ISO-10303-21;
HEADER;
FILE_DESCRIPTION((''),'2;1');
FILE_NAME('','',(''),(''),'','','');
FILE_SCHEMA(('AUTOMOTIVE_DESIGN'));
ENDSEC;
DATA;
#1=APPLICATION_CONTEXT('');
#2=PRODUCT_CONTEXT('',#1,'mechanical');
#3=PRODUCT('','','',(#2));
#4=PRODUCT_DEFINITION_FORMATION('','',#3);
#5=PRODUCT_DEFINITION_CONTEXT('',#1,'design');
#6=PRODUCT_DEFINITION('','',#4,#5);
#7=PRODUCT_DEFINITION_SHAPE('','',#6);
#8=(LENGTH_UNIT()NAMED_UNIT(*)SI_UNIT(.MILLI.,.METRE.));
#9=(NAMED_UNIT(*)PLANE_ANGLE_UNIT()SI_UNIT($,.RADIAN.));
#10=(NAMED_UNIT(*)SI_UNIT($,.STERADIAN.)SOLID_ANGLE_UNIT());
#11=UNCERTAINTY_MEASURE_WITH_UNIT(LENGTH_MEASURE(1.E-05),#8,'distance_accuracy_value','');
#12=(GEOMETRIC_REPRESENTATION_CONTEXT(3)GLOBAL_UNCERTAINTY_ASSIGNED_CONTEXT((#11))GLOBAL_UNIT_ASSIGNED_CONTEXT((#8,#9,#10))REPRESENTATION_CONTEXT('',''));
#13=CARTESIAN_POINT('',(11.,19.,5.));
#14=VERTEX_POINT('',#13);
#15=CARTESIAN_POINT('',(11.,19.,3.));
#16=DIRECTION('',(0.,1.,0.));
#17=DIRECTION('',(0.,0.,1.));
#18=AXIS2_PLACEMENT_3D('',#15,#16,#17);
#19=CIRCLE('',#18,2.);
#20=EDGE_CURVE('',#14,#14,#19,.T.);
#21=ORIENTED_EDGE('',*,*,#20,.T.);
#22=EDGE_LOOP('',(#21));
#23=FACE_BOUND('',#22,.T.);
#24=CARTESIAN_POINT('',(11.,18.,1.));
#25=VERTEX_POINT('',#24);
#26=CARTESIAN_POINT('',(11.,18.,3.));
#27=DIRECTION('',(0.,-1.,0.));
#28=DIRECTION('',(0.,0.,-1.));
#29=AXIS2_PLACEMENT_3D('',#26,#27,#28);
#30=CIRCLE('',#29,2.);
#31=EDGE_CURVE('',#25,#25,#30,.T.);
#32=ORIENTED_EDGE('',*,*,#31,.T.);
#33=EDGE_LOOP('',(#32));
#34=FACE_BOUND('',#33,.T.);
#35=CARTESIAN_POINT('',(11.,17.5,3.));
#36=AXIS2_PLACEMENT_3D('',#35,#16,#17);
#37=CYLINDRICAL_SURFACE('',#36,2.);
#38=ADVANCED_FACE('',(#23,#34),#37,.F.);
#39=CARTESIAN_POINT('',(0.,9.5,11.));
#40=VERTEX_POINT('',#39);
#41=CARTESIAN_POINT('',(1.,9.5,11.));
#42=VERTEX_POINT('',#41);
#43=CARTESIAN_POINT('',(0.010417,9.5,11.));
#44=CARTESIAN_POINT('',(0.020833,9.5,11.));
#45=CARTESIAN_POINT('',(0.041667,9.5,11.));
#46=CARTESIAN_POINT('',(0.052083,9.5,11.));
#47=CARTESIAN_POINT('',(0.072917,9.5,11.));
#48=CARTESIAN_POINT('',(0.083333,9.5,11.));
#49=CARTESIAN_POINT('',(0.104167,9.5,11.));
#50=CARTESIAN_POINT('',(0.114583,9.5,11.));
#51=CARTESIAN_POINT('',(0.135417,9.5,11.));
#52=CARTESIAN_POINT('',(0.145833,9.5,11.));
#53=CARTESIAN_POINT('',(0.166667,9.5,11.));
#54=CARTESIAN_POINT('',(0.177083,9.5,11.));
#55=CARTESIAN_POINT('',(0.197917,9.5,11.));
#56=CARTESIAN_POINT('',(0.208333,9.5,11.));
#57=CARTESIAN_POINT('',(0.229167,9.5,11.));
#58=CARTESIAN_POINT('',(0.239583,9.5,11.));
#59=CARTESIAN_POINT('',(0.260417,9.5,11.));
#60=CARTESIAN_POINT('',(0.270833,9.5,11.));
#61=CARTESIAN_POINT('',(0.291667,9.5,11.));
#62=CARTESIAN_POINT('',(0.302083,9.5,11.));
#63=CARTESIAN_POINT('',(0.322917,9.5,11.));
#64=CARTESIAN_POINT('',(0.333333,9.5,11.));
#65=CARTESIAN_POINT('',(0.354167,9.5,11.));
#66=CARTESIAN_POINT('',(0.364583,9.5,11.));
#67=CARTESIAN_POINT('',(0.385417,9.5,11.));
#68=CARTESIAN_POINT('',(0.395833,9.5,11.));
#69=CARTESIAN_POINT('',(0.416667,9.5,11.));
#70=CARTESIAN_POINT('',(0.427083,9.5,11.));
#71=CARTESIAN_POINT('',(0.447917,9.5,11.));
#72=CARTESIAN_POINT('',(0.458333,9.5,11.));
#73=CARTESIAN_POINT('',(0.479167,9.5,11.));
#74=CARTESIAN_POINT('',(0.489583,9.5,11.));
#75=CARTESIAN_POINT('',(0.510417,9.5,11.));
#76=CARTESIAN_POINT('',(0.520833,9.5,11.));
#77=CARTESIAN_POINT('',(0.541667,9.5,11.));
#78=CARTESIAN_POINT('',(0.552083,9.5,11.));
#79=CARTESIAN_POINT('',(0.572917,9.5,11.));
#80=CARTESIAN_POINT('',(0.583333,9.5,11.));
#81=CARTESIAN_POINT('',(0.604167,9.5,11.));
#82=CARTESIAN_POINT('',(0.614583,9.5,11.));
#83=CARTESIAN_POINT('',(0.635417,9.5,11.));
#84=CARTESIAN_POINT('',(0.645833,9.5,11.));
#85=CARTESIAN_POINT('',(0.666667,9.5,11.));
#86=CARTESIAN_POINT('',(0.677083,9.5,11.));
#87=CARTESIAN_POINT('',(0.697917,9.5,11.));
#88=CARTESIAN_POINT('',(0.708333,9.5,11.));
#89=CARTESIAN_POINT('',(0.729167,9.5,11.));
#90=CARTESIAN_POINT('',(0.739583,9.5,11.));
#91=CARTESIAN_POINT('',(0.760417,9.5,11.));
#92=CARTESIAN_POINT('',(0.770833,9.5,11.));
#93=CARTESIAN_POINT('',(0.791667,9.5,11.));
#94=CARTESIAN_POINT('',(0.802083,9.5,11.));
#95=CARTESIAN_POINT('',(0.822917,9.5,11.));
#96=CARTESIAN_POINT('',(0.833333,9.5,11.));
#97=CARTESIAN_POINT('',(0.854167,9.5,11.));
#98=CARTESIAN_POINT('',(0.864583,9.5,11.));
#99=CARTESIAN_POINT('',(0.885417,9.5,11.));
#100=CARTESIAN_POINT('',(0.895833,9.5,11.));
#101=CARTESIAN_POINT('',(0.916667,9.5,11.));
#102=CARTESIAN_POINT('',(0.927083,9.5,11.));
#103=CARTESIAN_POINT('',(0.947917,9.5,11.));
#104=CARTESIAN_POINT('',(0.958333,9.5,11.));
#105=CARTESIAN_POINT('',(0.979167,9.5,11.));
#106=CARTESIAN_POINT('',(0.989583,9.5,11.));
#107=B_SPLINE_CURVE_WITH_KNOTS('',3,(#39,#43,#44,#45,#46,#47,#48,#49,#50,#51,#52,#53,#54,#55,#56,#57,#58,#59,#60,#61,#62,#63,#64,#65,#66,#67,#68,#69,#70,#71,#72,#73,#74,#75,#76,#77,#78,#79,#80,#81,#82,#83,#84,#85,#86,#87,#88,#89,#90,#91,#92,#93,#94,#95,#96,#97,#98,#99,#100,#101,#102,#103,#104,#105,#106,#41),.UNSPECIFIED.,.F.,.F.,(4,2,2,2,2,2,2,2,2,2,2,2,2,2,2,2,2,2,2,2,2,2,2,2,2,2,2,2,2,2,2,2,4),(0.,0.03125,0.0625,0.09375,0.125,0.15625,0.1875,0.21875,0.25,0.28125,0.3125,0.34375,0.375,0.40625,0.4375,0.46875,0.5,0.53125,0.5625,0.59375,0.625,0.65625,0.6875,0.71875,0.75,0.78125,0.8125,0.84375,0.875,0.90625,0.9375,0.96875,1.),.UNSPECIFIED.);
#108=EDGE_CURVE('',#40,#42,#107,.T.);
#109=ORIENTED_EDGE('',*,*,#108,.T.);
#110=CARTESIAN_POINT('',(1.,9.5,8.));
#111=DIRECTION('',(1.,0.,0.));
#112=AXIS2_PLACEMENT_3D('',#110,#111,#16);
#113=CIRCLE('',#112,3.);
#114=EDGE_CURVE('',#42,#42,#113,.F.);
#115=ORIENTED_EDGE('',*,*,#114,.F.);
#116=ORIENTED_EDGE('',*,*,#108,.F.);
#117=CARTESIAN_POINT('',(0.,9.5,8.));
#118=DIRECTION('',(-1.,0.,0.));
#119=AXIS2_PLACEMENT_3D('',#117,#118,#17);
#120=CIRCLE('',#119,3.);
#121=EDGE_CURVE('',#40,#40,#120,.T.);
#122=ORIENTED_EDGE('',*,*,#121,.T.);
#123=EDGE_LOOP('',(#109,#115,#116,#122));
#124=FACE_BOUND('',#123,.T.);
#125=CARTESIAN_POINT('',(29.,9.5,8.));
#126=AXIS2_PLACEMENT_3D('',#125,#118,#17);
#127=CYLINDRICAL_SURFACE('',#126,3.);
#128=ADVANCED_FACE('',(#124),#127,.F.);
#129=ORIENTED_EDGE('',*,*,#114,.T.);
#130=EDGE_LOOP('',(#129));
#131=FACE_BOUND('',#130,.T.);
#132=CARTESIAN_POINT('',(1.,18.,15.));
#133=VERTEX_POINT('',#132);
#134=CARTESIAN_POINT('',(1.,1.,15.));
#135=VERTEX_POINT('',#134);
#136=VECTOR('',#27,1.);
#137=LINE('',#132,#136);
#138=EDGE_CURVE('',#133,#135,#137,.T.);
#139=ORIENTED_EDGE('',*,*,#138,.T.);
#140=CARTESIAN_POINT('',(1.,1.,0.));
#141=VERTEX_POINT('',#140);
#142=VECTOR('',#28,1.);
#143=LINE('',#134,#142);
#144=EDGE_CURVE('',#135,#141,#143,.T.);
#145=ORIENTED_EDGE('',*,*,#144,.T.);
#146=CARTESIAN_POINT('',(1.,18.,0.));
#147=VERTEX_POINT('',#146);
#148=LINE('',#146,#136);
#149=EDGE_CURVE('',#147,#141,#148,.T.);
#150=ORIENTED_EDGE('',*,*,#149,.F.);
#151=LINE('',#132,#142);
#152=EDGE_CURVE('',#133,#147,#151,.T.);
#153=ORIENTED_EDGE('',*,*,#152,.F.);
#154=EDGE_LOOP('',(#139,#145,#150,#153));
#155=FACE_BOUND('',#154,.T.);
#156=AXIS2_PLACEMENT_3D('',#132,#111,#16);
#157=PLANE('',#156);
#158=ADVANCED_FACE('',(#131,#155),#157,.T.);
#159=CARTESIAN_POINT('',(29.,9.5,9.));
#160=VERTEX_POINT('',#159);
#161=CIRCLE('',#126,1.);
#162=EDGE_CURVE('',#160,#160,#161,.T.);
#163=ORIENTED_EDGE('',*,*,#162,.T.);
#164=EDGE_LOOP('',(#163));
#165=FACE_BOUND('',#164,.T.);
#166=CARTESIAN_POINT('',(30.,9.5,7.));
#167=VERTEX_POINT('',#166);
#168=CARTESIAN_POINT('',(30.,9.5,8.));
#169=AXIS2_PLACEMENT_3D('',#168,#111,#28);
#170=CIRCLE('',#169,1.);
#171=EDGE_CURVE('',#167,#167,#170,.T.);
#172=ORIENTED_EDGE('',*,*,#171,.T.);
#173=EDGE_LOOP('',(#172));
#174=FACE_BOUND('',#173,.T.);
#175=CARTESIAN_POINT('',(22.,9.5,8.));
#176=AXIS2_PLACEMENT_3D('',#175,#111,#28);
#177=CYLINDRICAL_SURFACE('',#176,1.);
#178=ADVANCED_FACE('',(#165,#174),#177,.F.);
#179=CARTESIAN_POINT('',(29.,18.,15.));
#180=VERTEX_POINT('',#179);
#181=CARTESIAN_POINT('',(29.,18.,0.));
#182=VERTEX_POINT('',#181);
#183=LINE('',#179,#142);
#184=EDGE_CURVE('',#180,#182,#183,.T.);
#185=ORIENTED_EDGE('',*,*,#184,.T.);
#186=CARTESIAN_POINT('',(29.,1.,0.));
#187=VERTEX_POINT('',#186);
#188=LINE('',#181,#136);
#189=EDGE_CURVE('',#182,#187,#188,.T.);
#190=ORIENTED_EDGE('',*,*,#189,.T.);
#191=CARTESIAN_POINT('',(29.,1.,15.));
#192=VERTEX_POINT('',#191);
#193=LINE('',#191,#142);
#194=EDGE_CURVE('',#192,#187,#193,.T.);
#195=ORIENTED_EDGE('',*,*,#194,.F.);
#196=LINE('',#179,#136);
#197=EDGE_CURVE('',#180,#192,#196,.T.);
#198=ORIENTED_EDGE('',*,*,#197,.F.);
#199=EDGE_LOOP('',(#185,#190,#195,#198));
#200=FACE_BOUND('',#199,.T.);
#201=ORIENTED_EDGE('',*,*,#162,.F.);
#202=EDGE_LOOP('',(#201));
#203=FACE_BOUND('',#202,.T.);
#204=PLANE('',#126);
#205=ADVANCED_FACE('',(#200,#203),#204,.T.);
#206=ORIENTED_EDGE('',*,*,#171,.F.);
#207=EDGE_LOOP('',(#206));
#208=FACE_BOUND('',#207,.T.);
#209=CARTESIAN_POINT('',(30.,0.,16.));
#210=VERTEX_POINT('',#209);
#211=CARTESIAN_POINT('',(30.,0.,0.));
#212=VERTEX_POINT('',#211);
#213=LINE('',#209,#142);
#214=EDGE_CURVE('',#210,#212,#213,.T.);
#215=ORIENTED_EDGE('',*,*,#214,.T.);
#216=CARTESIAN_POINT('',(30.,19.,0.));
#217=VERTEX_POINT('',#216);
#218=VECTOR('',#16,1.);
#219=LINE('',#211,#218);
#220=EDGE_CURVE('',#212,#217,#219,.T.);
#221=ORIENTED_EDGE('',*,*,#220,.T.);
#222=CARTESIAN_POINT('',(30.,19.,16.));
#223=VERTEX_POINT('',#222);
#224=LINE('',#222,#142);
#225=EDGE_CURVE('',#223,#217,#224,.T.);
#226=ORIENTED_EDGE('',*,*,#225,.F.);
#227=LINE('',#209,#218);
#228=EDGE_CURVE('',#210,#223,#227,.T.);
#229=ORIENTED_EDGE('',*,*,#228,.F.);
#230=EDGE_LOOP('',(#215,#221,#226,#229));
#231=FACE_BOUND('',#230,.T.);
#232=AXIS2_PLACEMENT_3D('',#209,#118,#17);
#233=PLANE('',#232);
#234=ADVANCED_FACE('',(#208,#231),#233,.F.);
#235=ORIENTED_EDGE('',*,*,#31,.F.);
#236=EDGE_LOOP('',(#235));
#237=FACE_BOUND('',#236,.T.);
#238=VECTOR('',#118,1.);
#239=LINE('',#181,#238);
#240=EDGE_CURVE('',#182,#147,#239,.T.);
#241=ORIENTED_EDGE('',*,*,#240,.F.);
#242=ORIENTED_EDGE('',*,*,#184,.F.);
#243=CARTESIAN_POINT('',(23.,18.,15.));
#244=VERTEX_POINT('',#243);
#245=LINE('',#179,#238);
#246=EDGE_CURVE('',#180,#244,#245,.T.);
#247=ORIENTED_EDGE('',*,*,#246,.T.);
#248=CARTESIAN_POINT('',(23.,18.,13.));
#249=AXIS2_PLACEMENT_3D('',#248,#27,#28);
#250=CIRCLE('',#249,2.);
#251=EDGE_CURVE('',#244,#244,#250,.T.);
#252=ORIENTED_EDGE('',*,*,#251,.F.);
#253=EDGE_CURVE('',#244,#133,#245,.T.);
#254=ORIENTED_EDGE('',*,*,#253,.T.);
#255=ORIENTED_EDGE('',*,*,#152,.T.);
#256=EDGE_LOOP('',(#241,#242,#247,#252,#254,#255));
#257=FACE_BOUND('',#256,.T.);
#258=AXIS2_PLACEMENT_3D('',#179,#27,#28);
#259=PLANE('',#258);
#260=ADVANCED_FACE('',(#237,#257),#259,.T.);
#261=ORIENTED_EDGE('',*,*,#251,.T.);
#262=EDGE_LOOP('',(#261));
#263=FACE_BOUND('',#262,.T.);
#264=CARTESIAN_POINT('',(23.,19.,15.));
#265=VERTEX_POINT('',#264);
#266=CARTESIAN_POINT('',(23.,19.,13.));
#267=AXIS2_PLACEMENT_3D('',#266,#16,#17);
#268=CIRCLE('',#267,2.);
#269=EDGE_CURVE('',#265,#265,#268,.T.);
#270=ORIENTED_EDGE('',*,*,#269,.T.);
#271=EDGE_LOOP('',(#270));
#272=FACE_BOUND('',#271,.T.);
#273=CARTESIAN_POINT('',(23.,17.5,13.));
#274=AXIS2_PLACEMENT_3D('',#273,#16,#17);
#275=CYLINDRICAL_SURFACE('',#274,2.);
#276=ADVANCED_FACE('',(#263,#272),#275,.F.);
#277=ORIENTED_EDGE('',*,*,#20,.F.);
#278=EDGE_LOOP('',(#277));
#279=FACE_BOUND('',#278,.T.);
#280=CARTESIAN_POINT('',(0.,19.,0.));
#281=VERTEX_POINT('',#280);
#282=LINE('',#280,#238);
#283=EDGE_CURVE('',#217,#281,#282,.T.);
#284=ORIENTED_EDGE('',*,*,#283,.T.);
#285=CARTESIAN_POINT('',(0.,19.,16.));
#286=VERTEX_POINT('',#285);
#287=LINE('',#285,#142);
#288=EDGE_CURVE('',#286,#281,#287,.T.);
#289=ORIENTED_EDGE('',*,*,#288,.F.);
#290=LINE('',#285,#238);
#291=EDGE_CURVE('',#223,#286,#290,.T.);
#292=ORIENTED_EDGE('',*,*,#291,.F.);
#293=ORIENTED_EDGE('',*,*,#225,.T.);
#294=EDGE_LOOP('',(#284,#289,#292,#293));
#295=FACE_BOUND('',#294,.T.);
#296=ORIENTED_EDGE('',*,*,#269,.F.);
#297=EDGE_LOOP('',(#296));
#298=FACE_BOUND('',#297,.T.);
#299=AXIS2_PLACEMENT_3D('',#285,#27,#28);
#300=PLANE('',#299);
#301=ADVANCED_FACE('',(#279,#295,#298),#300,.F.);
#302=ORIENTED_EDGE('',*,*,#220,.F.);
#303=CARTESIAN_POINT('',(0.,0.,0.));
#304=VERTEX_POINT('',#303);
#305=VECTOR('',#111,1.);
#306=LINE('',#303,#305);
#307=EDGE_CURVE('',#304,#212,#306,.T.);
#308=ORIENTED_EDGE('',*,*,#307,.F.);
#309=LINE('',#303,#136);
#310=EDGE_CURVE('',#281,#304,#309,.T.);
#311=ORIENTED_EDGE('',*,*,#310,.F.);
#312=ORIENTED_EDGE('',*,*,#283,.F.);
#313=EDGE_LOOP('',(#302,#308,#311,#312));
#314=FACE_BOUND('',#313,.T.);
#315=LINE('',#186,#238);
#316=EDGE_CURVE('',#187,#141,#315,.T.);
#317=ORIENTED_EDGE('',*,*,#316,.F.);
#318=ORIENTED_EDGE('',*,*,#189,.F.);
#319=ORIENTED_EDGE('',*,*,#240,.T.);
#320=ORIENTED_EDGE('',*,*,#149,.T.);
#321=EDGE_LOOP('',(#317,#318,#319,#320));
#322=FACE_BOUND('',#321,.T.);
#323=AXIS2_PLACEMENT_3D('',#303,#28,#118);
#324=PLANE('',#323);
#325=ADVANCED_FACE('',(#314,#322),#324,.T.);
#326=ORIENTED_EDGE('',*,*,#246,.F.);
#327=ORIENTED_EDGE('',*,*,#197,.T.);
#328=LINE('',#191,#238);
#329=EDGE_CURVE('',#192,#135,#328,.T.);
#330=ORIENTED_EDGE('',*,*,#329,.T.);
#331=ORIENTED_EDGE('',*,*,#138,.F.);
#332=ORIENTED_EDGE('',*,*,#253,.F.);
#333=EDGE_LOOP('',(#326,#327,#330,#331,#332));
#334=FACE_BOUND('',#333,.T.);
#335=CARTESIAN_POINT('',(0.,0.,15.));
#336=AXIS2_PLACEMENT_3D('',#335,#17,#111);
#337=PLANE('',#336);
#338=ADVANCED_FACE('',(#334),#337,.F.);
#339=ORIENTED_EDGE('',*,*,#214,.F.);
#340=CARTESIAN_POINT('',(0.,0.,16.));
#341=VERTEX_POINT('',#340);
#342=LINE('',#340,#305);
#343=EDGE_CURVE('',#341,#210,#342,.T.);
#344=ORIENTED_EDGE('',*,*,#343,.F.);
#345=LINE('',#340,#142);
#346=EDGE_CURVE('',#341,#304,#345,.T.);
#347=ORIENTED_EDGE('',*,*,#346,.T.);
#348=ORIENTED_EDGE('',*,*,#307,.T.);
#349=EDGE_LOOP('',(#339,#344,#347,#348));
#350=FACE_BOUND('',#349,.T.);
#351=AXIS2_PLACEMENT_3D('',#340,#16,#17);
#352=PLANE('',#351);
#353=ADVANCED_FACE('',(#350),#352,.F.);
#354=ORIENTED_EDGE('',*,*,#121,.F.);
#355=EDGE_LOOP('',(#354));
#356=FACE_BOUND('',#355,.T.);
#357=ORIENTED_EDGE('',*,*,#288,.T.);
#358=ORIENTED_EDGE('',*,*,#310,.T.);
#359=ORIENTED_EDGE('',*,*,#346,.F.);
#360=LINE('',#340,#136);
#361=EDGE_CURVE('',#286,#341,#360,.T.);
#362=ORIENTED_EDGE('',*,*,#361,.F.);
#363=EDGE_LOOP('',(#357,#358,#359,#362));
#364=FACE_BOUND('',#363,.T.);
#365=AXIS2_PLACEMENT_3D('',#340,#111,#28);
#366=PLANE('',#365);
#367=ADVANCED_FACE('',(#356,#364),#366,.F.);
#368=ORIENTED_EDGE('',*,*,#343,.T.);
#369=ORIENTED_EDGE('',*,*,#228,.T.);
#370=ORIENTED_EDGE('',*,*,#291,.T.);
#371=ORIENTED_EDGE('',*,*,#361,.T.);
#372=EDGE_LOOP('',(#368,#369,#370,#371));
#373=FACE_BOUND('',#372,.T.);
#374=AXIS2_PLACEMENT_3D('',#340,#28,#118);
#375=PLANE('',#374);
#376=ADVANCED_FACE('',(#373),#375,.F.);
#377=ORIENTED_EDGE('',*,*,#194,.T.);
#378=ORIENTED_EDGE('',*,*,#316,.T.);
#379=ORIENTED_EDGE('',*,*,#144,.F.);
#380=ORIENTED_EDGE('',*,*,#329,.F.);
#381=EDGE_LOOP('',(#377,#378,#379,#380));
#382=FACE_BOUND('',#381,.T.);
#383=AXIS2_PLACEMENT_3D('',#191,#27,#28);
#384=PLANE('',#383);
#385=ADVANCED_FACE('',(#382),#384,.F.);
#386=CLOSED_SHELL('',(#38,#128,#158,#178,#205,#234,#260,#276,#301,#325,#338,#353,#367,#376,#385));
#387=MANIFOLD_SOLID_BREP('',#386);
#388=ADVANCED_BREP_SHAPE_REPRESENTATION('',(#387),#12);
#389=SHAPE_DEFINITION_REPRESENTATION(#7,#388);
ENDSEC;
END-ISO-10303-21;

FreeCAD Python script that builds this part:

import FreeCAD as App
import Part
import Sketcher
Q = App.Units.Quantity

doc = App.newDocument("Part")
body = doc.addObject("PartDesign::Body", "Body")

# Sketch on XY plane
sketch1 = doc.addObject("Sketcher::SketchObject", "Sketch")
body.addObject(sketch1)
sketch1.AttachmentSupport = (doc.XY_Plane, [""])
sketch1.MapMode = "FlatFace"
sketch1.addGeometry(Part.LineSegment(App.Vector(0, 19, 0), App.Vector(0, 0, 0)), False)
sketch1.addGeometry(Part.LineSegment(App.Vector(0, 0, 0), App.Vector(30, 0, 0)), False)
sketch1.addGeometry(Part.LineSegment(App.Vector(30, 0, 0), App.Vector(30, 19, 0)), False)
sketch1.addGeometry(Part.LineSegment(App.Vector(30, 19, 0), App.Vector(0, 19, 0)), False)
sketch1.addConstraint(Sketcher.Constraint("Coincident", 0, 2, 1, 1))
sketch1.addConstraint(Sketcher.Constraint("Coincident", 1, 2, 2, 1))
sketch1.addConstraint(Sketcher.Constraint("Coincident", 2, 2, 3, 1))
sketch1.addConstraint(Sketcher.Constraint("Coincident", 3, 2, 0, 1))
sketch1.addConstraint(Sketcher.Constraint("Vertical", 0))
sketch1.addConstraint(Sketcher.Constraint("Horizontal", 1))
sketch1.addConstraint(Sketcher.Constraint("Vertical", 2))
sketch1.addConstraint(Sketcher.Constraint("Horizontal", 3))
sketch1.addConstraint(Sketcher.Constraint("Coincident", 0, 2, -1, 1))
sketch1.addConstraint(Sketcher.Constraint("DistanceX", 1, 1, 1, 2, Q("30 mm")))
sketch1.addConstraint(Sketcher.Constraint("DistanceY", 0, 2, 0, 1, Q("19 mm")))
pad1 = doc.addObject("PartDesign::Pad", "Pad")
body.addObject(pad1)
pad1.Profile = sketch1
pad1.Length = 16

# Sketch on YZ plane
sketch2 = doc.addObject("Sketcher::SketchObject", "Sketch001")
body.addObject(sketch2)
sketch2.AttachmentSupport = (doc.YZ_Plane, [""])
sketch2.MapMode = "FlatFace"
sketch2.addGeometry(Part.Circle(App.Vector(9.5, 8, 0), App.Vector(0, 0, 1), 3), False)
sketch2.addConstraint(Sketcher.Constraint("Diameter", 0, Q("6 mm")))
sketch2.addConstraint(Sketcher.Constraint("DistanceY", -1, 1, 0, 3, Q("8 mm")))
sketch2.addConstraint(Sketcher.Constraint("DistanceX", -1, 1, 0, 3, Q("9.5 mm")))
pocket1 = doc.addObject("PartDesign::Pocket", "Pocket")
body.addObject(pocket1)
pocket1.Profile = sketch2
pocket1.Length = 29
pocket1.Reversed = True

# Sketch on YZ plane
sketch3 = doc.addObject("Sketcher::SketchObject", "Sketch002")
body.addObject(sketch3)
sketch3.AttachmentSupport = (doc.YZ_Plane, [""])
sketch3.MapMode = "FlatFace"
sketch3.AttachmentOffset = App.Placement(App.Vector(0, 0, 30), App.Rotation())
sketch3.addGeometry(Part.Circle(App.Vector(9.5, 8, 0), App.Vector(0, 0, 1), 1), False)
sketch3.addConstraint(Sketcher.Constraint("Diameter", 0, Q("2 mm")))
sketch3.addConstraint(Sketcher.Constraint("DistanceY", -1, 1, 0, 3, Q("8 mm")))
sketch3.addConstraint(Sketcher.Constraint("DistanceX", -1, 1, 0, 3, Q("9.5 mm")))
pocket2 = doc.addObject("PartDesign::Pocket", "Pocket001")
body.addObject(pocket2)
pocket2.Profile = sketch3
pocket2.Length = 8

# Sketch on XY plane
sketch4 = doc.addObject("Sketcher::SketchObject", "Sketch003")
body.addObject(sketch4)
sketch4.AttachmentSupport = (doc.XY_Plane, [""])
sketch4.MapMode = "FlatFace"
sketch4.addGeometry(Part.LineSegment(App.Vector(29, 18, 0), App.Vector(29, 1, 0)), False)
sketch4.addGeometry(Part.LineSegment(App.Vector(29, 1, 0), App.Vector(1, 1, 0)), False)
sketch4.addGeometry(Part.LineSegment(App.Vector(1, 1, 0), App.Vector(1, 18, 0)), False)
sketch4.addGeometry(Part.LineSegment(App.Vector(1, 18, 0), App.Vector(29, 18, 0)), False)
sketch4.addConstraint(Sketcher.Constraint("Coincident", 0, 2, 1, 1))
sketch4.addConstraint(Sketcher.Constraint("Coincident", 1, 2, 2, 1))
sketch4.addConstraint(Sketcher.Constraint("Coincident", 2, 2, 3, 1))
sketch4.addConstraint(Sketcher.Constraint("Coincident", 3, 2, 0, 1))
sketch4.addConstraint(Sketcher.Constraint("Vertical", 0))
sketch4.addConstraint(Sketcher.Constraint("Horizontal", 1))
sketch4.addConstraint(Sketcher.Constraint("Vertical", 2))
sketch4.addConstraint(Sketcher.Constraint("Horizontal", 3))
sketch4.addConstraint(Sketcher.Constraint("DistanceX", 1, 2, 1, 1, Q("28 mm")))
sketch4.addConstraint(Sketcher.Constraint("DistanceY", 0, 2, 0, 1, Q("17 mm")))
sketch4.addConstraint(Sketcher.Constraint("DistanceX", -1, 1, 0, 2, Q("29 mm")))
sketch4.addConstraint(Sketcher.Constraint("DistanceY", -1, 1, 0, 2, Q("1 mm")))
pocket3 = doc.addObject("PartDesign::Pocket", "Pocket002")
body.addObject(pocket3)
pocket3.Profile = sketch4
pocket3.Length = 15
pocket3.Reversed = True

# Sketch on XZ plane
sketch5 = doc.addObject("Sketcher::SketchObject", "Sketch004")
body.addObject(sketch5)
sketch5.AttachmentSupport = (doc.XZ_Plane, [""])
sketch5.MapMode = "FlatFace"
sketch5.AttachmentOffset = App.Placement(App.Vector(0, 0, -19), App.Rotation())
sketch5.addGeometry(Part.Circle(App.Vector(23, 13, 0), App.Vector(0, 0, 1), 2), False)
sketch5.addGeometry(Part.Circle(App.Vector(11, 3, 0), App.Vector(0, 0, 1), 2), False)
sketch5.addConstraint(Sketcher.Constraint("Equal", 0, 1))
sketch5.addConstraint(Sketcher.Constraint("Diameter", 0, Q("4 mm")))
sketch5.addConstraint(Sketcher.Constraint("DistanceX", -1, 1, 0, 3, Q("23 mm")))
sketch5.addConstraint(Sketcher.Constraint("DistanceY", -1, 1, 0, 3, Q("13 mm")))
sketch5.addConstraint(Sketcher.Constraint("DistanceX", -1, 1, 1, 3, Q("11 mm")))
sketch5.addConstraint(Sketcher.Constraint("DistanceY", -1, 1, 1, 3, Q("3 mm")))
pocket4 = doc.addObject("PartDesign::Pocket", "Pocket003")
body.addObject(pocket4)
pocket4.Profile = sketch5
pocket4.Length = 1.5
pocket4.Reversed = True

doc.recompute()
